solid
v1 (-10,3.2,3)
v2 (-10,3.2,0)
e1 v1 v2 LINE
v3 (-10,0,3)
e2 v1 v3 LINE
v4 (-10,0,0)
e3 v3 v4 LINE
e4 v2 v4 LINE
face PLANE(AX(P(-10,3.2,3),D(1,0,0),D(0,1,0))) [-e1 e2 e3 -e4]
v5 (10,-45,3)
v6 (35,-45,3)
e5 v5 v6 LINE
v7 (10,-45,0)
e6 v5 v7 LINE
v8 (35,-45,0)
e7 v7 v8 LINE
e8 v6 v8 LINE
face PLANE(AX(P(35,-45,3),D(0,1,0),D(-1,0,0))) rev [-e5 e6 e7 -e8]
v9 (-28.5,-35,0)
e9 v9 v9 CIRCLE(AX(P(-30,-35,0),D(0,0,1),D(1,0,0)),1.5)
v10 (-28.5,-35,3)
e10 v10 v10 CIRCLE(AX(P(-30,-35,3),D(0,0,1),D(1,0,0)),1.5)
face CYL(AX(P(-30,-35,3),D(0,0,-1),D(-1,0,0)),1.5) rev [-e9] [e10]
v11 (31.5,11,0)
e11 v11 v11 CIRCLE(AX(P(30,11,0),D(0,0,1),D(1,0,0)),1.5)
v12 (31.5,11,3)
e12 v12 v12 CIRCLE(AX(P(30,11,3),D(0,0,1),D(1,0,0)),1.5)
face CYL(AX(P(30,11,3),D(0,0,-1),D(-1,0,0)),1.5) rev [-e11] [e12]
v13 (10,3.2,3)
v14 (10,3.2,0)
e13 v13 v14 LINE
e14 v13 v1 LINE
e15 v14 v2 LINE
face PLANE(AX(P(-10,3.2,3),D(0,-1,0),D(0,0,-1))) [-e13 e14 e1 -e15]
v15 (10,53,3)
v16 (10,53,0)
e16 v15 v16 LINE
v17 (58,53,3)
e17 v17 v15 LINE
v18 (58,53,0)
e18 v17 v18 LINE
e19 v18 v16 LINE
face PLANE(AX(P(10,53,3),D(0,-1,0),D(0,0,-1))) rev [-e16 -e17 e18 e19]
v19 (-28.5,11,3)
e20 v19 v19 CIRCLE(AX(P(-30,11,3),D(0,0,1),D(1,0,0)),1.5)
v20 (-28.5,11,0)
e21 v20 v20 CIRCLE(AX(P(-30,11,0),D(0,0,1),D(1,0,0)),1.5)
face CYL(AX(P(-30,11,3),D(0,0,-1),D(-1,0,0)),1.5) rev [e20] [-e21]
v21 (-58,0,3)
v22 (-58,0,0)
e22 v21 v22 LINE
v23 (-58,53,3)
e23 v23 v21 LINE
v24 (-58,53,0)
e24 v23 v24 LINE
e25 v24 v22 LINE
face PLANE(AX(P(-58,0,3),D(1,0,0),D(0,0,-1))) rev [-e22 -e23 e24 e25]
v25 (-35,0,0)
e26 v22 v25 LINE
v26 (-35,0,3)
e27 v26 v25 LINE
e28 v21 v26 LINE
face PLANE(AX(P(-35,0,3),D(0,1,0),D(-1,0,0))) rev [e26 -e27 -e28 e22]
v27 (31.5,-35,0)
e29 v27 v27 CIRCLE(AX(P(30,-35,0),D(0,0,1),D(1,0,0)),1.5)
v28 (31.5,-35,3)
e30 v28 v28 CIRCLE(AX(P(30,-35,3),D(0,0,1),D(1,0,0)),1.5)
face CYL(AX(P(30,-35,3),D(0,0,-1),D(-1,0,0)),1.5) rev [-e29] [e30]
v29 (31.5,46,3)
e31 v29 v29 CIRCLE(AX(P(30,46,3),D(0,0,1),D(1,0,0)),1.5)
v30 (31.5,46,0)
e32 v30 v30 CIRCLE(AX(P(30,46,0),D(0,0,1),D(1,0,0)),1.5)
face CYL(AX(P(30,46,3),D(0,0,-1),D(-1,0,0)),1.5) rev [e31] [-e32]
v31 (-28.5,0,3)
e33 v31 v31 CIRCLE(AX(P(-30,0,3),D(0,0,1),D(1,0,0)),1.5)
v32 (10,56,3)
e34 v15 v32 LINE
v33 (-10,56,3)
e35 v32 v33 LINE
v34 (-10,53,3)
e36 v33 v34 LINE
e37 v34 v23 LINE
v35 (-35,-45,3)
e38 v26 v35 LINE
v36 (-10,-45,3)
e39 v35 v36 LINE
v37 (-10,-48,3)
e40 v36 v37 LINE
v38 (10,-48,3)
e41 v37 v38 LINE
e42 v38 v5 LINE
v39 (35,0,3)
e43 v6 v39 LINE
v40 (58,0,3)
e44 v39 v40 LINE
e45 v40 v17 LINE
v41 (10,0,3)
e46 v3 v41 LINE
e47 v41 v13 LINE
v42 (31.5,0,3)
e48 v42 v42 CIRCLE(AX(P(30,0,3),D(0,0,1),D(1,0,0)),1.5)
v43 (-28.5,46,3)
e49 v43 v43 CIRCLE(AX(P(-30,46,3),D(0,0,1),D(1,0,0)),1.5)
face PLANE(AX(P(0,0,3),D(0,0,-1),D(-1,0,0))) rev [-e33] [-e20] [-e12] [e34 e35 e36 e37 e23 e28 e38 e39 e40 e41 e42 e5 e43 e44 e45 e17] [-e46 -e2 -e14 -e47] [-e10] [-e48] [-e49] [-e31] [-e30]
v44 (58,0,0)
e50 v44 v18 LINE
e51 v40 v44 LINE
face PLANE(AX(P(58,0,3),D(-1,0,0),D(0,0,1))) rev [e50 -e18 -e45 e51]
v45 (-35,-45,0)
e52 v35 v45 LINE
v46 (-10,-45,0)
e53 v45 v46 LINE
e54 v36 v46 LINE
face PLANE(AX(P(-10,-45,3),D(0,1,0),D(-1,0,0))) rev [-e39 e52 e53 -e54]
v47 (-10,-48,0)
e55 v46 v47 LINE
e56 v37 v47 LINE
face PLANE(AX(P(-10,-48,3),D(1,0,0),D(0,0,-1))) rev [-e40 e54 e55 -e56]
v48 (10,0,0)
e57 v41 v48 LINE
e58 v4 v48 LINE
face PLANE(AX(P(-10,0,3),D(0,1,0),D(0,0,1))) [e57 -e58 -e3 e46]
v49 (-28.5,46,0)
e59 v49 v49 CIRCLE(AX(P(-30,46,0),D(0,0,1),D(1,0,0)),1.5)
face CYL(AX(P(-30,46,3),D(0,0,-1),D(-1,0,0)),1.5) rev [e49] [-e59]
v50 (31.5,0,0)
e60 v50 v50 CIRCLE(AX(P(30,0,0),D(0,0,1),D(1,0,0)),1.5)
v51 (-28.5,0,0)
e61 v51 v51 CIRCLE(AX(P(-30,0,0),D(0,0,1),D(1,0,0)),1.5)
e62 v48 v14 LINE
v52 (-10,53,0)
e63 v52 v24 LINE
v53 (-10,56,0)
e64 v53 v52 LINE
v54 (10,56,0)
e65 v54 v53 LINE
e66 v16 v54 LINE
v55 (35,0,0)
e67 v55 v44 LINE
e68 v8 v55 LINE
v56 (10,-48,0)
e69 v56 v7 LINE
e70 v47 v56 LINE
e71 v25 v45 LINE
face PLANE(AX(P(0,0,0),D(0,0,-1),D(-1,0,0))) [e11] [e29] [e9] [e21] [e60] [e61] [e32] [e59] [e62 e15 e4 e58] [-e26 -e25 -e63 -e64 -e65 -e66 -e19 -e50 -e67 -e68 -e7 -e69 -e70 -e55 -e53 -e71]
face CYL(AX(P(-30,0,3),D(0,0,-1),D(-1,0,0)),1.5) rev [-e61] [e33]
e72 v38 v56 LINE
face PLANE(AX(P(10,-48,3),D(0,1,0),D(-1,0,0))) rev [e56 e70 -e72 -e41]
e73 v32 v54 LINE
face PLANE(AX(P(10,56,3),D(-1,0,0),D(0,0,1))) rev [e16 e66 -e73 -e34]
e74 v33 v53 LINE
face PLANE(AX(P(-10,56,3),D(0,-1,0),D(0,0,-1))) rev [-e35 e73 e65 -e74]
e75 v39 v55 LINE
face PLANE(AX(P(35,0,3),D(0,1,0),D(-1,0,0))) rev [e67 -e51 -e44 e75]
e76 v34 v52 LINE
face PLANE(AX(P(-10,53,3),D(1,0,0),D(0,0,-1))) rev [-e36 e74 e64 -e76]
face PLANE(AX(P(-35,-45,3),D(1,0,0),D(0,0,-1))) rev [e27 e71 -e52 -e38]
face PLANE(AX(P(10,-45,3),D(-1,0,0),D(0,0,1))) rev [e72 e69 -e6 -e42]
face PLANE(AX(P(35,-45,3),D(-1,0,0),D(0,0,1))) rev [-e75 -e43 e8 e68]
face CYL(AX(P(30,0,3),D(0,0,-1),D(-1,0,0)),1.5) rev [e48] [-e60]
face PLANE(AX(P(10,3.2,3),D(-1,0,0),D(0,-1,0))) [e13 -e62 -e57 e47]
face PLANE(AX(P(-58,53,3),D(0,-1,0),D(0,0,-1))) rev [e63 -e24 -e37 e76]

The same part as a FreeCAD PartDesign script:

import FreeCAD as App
import Part
import Sketcher

V = App.Vector
Q = App.Units.Quantity


def add_polygon(sketch, points):
    """Adds a closed chain of lines whose ends are joined by coincident constraints."""
    first, n = sketch.GeometryCount, len(points)
    for a, b in zip(points, points[1:] + points[:1]):
        sketch.addGeometry(Part.LineSegment(App.Vector(*a, 0), App.Vector(*b, 0)), False)
    for i in range(n):
        sketch.addConstraint(Sketcher.Constraint("Coincident", first + i, 2, first + (i + 1) % n, 1))

doc = App.newDocument("Part")
params = doc.addObject("Spreadsheet::Sheet", "Params")
for row, (alias, value) in enumerate([
    ("sketch1_diameter", "3 mm"),
    ("sketch1_width", "20 mm"),
    ("sketch1_width2", "25 mm"),
    ("sketch1_width3", "23 mm"),
    ("sketch1_height", "3 mm"),
    ("pad1_length", "3 mm"),
], start=1):
    params.set(f"A{row}", alias)
    params.set(f"B{row}", "=" + value)
    params.setAlias(f"B{row}", alias)

body = doc.addObject("PartDesign::Body", "Body")

# Sketch on XY plane
sketch1 = body.newObject("Sketcher::SketchObject", "Sketch")
sketch1.AttachmentSupport = (doc.getObject("XY_Plane"), [""])
sketch1.MapMode = "FlatFace"
add_polygon(sketch1, [(-10, -48), (10, -48), (10, -45), (35, -45), (35, 0), (58, 0), (58, 53), (10, 53), (10, 56), (-10, 56), (-10, 53), (-58, 53), (-58, 0), (-35, 0), (-35, -45), (-10, -45)])  # lines 0-15
sketch1.addGeometry(Part.Circle(V(30, -35, 0), V(0, 0, 1), 1.5), False)  # 16
sketch1.addGeometry(Part.Circle(V(30, 0, 0), V(0, 0, 1), 1.5), False)  # 17
sketch1.addGeometry(Part.Circle(V(-30, -35, 0), V(0, 0, 1), 1.5), False)  # 18
add_polygon(sketch1, [(-10, 0), (-10, 3.2), (10, 3.2), (10, 0)])  # lines 19-22
sketch1.addGeometry(Part.Circle(V(-30, 0, 0), V(0, 0, 1), 1.5), False)  # 23
sketch1.addGeometry(Part.Circle(V(30, 11, 0), V(0, 0, 1), 1.5), False)  # 24
sketch1.addGeometry(Part.Circle(V(30, 46, 0), V(0, 0, 1), 1.5), False)  # 25
sketch1.addGeometry(Part.Circle(V(-30, 11, 0), V(0, 0, 1), 1.5), False)  # 26
sketch1.addGeometry(Part.Circle(V(-30, 46, 0), V(0, 0, 1), 1.5), False)  # 27
sketch1.addConstraint([
    Sketcher.Constraint("Horizontal", 0),
    Sketcher.Constraint("Vertical", 1),
    Sketcher.Constraint("Horizontal", 2),
    Sketcher.Constraint("Vertical", 3),
    Sketcher.Constraint("Horizontal", 4),
    Sketcher.Constraint("Vertical", 5),
    Sketcher.Constraint("Horizontal", 6),
    Sketcher.Constraint("Vertical", 7),
    Sketcher.Constraint("Horizontal", 8),
    Sketcher.Constraint("Vertical", 9),
    Sketcher.Constraint("Horizontal", 10),
    Sketcher.Constraint("Vertical", 11),
    Sketcher.Constraint("Horizontal", 12),
    Sketcher.Constraint("Vertical", 13),
    Sketcher.Constraint("Horizontal", 14),
    Sketcher.Constraint("Vertical", 15),
    Sketcher.Constraint("Vertical", 19),
    Sketcher.Constraint("Horizontal", 20),
    Sketcher.Constraint("Vertical", 21),
    Sketcher.Constraint("Horizontal", 22),
    Sketcher.Constraint("Equal", 16, 17),
    Sketcher.Constraint("Equal", 17, 18),
    Sketcher.Constraint("Equal", 18, 23),
    Sketcher.Constraint("Equal", 23, 24),
    Sketcher.Constraint("Equal", 24, 25),
    Sketcher.Constraint("Equal", 25, 26),
    Sketcher.Constraint("Equal", 26, 27),
    Sketcher.Constraint("Symmetric", 17, 3, 23, 3, -1, 1),
    Sketcher.Constraint("Symmetric", 4, 2, 11, 2, -1, 1),
    Sketcher.Constraint("Symmetric", 21, 2, 22, 2, -1, 1),
    Sketcher.Constraint("Symmetric", 16, 3, 18, 3, -2),
    Sketcher.Constraint("Symmetric", 24, 3, 26, 3, -2),
    Sketcher.Constraint("Symmetric", 25, 3, 27, 3, -2),
    Sketcher.Constraint("Symmetric", 6, 2, 9, 2, -2),
    Sketcher.Constraint("Symmetric", 3, 2, 12, 2, -2),
    Sketcher.Constraint("Symmetric", 1, 2, 14, 2, -2),
    Sketcher.Constraint("PointOnObject", 17, 3, -1),
    Sketcher.Constraint("Vertical", 16, 3, 17, 3),
    Sketcher.Constraint("Vertical", 17, 3, 24, 3),
    Sketcher.Constraint("Vertical", 24, 3, 25, 3),
    Sketcher.Constraint("Vertical", 1, 2, 6, 2),
    Sketcher.Constraint("Vertical", 15, 2, 19, 2),
    Sketcher.Constraint("Equal", 1, 7),
    Sketcher.Constraint("Diameter", 16, Q("3 mm")),
    Sketcher.Constraint("DistanceX", 0, 1, 0, 2, Q("20 mm")),
    Sketcher.Constraint("DistanceX", 2, 1, 2, 2, Q("25 mm")),
    Sketcher.Constraint("DistanceX", 4, 1, 4, 2, Q("23 mm")),
    Sketcher.Constraint("DistanceY", 1, 1, 1, 2, Q("3 mm")),
    Sketcher.Constraint("DistanceY", 3, 1, 3, 2, Q("45 mm")),
    Sketcher.Constraint("DistanceY", 5, 1, 5, 2, Q("53 mm")),
    Sketcher.Constraint("DistanceY", 19, 1, 19, 2, Q("3.2 mm")),
    Sketcher.Constraint("DistanceX", -1, 1, 16, 3, Q("30 mm")),
    Sketcher.Constraint("DistanceY", 16, 3, -1, 1, Q("35 mm")),
    Sketcher.Constraint("DistanceY", -1, 1, 24, 3, Q("11 mm")),
    Sketcher.Constraint("DistanceY", -1, 1, 25, 3, Q("46 mm")),
])
sketch1.setExpression("Constraints[63]", "Params.sketch1_diameter")
sketch1.setExpression("Constraints[64]", "Params.sketch1_width")
sketch1.setExpression("Constraints[65]", "Params.sketch1_width2")
sketch1.setExpression("Constraints[66]", "Params.sketch1_width3")
sketch1.setExpression("Constraints[67]", "Params.sketch1_height")
pad1 = body.newObject("PartDesign::Pad", "Pad")
pad1.Profile = sketch1
pad1.setExpression("Length", "Params.pad1_length")

doc.recompute()
